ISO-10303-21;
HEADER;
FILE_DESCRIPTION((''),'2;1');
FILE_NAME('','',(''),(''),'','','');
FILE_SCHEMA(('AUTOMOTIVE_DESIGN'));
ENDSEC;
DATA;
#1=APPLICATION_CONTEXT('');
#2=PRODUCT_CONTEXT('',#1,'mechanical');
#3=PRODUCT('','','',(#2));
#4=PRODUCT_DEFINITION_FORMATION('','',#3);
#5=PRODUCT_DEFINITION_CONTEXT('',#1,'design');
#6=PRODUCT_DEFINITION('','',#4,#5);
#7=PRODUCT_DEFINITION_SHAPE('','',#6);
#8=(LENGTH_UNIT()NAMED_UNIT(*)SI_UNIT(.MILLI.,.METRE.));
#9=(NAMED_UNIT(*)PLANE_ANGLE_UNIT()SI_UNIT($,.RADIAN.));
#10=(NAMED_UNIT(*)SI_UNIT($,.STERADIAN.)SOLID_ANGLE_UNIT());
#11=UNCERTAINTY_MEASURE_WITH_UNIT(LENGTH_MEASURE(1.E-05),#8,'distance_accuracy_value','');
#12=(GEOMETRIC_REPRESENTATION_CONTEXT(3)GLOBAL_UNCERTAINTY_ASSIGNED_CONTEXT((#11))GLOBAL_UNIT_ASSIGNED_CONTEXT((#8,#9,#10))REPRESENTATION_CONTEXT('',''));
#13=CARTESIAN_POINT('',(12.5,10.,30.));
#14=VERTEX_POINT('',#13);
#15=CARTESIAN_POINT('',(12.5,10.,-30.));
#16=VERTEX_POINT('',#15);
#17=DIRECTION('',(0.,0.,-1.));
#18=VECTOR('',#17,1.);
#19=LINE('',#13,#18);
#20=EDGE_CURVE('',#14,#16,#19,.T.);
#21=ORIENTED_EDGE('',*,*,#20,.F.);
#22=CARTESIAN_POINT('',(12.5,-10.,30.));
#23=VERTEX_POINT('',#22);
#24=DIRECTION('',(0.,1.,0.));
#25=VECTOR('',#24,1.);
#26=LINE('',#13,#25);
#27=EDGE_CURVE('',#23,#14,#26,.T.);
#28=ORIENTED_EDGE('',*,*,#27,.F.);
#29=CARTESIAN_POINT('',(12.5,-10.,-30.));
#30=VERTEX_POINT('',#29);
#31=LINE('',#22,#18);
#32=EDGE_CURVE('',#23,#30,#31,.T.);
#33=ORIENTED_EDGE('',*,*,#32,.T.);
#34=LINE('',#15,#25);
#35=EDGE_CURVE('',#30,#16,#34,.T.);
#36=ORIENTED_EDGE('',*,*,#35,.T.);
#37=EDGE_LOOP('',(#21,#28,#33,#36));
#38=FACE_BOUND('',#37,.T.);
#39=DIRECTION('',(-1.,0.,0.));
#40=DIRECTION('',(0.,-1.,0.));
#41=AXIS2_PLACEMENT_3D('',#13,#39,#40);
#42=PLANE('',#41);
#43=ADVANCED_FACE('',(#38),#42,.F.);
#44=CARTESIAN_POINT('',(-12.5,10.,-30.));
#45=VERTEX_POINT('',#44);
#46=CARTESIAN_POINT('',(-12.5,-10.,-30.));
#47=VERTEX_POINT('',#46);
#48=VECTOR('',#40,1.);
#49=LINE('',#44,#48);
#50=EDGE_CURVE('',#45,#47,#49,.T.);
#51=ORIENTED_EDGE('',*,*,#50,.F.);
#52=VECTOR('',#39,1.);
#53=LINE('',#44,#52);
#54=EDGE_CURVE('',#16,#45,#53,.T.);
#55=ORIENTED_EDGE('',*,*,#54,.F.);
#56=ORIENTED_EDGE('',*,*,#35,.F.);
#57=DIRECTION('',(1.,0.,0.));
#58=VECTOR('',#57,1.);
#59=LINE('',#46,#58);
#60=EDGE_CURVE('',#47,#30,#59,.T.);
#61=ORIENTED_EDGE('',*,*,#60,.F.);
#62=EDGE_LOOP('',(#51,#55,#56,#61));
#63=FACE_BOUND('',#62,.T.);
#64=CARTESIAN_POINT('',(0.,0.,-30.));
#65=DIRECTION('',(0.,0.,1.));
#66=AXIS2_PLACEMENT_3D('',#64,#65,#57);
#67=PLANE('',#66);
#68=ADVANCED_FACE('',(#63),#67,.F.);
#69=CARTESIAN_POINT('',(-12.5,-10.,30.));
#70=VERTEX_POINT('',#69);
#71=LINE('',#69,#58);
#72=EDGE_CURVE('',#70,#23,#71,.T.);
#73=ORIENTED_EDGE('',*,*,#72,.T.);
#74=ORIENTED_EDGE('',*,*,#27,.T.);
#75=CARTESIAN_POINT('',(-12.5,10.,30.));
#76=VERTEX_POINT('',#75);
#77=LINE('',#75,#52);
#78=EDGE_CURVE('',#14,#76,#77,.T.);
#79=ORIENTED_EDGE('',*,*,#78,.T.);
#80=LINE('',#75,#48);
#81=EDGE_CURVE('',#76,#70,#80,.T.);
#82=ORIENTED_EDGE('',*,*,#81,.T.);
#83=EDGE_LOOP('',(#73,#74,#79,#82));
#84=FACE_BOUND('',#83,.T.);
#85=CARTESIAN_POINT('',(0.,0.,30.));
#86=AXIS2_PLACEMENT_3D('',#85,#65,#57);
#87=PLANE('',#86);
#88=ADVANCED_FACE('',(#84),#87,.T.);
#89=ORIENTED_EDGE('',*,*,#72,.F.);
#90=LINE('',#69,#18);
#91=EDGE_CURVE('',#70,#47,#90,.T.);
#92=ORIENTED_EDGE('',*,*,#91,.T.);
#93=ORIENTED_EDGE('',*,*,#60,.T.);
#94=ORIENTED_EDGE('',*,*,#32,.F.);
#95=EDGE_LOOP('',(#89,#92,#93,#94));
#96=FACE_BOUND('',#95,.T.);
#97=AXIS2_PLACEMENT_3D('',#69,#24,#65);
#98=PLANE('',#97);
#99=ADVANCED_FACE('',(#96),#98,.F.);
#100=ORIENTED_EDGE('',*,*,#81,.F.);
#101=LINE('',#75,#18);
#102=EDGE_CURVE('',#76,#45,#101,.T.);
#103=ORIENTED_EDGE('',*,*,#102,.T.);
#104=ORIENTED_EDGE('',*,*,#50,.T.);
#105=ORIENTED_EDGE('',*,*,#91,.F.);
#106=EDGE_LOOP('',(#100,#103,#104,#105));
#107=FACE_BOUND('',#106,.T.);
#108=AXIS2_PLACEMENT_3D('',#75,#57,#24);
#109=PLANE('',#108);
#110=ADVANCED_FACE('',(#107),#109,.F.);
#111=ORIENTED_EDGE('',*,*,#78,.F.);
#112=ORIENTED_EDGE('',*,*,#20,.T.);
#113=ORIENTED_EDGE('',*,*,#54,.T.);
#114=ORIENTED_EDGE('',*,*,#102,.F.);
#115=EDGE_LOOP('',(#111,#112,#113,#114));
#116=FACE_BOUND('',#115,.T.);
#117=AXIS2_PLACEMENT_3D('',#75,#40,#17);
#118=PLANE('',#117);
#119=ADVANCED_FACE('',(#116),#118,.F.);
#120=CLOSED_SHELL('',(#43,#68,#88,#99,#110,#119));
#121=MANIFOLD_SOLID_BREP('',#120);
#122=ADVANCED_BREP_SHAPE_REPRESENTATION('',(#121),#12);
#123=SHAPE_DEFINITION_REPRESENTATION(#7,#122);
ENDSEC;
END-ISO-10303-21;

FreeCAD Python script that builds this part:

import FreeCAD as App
import Part
import Sketcher

V = App.Vector


def add_polygon(sketch, points):
    """Adds a closed chain of lines whose ends are joined by coincident constraints."""
    first, n = sketch.GeometryCount, len(points)
    for a, b in zip(points, points[1:] + points[:1]):
        sketch.addGeometry(Part.LineSegment(App.Vector(*a, 0), App.Vector(*b, 0)), False)
    for i in range(n):
        sketch.addConstraint(Sketcher.Constraint("Coincident", first + i, 2, first + (i + 1) % n, 1))

doc = App.newDocument("Part")
body = doc.addObject("PartDesign::Body", "Body")

sketch1 = doc.addObject("Sketcher::SketchObject", "Sketch")
body.addObject(sketch1)
sketch1.AttachmentSupport = (doc.XY_Plane, [""])
sketch1.MapMode = "FlatFace"
add_polygon(sketch1, [(-12, 10), (-12, -10), (12, -10), (12, 10)])
sketch1.addConstraint(Sketcher.Constraint("Vertical", 0))
sketch1.addConstraint(Sketcher.Constraint("Horizontal", 1))
sketch1.addConstraint(Sketcher.Constraint("Vertical", 2))
sketch1.addConstraint(Sketcher.Constraint("Horizontal", 3))
sketch1.addConstraint(Sketcher.Constraint("Symmetric", 0, 2, 2, 2, -1, 1))
sketch1.addConstraint(Sketcher.Constraint("DistanceX", 1, 1, 1, 2, 25.0))
sketch1.addConstraint(Sketcher.Constraint("DistanceY", 0, 2, 0, 1, 20.0))
pad1 = doc.addObject("PartDesign::Pad", "Pad")
body.addObject(pad1)
pad1.Profile = sketch1
pad1.Length = 60
pad1.Midplane = True

doc.recompute()
